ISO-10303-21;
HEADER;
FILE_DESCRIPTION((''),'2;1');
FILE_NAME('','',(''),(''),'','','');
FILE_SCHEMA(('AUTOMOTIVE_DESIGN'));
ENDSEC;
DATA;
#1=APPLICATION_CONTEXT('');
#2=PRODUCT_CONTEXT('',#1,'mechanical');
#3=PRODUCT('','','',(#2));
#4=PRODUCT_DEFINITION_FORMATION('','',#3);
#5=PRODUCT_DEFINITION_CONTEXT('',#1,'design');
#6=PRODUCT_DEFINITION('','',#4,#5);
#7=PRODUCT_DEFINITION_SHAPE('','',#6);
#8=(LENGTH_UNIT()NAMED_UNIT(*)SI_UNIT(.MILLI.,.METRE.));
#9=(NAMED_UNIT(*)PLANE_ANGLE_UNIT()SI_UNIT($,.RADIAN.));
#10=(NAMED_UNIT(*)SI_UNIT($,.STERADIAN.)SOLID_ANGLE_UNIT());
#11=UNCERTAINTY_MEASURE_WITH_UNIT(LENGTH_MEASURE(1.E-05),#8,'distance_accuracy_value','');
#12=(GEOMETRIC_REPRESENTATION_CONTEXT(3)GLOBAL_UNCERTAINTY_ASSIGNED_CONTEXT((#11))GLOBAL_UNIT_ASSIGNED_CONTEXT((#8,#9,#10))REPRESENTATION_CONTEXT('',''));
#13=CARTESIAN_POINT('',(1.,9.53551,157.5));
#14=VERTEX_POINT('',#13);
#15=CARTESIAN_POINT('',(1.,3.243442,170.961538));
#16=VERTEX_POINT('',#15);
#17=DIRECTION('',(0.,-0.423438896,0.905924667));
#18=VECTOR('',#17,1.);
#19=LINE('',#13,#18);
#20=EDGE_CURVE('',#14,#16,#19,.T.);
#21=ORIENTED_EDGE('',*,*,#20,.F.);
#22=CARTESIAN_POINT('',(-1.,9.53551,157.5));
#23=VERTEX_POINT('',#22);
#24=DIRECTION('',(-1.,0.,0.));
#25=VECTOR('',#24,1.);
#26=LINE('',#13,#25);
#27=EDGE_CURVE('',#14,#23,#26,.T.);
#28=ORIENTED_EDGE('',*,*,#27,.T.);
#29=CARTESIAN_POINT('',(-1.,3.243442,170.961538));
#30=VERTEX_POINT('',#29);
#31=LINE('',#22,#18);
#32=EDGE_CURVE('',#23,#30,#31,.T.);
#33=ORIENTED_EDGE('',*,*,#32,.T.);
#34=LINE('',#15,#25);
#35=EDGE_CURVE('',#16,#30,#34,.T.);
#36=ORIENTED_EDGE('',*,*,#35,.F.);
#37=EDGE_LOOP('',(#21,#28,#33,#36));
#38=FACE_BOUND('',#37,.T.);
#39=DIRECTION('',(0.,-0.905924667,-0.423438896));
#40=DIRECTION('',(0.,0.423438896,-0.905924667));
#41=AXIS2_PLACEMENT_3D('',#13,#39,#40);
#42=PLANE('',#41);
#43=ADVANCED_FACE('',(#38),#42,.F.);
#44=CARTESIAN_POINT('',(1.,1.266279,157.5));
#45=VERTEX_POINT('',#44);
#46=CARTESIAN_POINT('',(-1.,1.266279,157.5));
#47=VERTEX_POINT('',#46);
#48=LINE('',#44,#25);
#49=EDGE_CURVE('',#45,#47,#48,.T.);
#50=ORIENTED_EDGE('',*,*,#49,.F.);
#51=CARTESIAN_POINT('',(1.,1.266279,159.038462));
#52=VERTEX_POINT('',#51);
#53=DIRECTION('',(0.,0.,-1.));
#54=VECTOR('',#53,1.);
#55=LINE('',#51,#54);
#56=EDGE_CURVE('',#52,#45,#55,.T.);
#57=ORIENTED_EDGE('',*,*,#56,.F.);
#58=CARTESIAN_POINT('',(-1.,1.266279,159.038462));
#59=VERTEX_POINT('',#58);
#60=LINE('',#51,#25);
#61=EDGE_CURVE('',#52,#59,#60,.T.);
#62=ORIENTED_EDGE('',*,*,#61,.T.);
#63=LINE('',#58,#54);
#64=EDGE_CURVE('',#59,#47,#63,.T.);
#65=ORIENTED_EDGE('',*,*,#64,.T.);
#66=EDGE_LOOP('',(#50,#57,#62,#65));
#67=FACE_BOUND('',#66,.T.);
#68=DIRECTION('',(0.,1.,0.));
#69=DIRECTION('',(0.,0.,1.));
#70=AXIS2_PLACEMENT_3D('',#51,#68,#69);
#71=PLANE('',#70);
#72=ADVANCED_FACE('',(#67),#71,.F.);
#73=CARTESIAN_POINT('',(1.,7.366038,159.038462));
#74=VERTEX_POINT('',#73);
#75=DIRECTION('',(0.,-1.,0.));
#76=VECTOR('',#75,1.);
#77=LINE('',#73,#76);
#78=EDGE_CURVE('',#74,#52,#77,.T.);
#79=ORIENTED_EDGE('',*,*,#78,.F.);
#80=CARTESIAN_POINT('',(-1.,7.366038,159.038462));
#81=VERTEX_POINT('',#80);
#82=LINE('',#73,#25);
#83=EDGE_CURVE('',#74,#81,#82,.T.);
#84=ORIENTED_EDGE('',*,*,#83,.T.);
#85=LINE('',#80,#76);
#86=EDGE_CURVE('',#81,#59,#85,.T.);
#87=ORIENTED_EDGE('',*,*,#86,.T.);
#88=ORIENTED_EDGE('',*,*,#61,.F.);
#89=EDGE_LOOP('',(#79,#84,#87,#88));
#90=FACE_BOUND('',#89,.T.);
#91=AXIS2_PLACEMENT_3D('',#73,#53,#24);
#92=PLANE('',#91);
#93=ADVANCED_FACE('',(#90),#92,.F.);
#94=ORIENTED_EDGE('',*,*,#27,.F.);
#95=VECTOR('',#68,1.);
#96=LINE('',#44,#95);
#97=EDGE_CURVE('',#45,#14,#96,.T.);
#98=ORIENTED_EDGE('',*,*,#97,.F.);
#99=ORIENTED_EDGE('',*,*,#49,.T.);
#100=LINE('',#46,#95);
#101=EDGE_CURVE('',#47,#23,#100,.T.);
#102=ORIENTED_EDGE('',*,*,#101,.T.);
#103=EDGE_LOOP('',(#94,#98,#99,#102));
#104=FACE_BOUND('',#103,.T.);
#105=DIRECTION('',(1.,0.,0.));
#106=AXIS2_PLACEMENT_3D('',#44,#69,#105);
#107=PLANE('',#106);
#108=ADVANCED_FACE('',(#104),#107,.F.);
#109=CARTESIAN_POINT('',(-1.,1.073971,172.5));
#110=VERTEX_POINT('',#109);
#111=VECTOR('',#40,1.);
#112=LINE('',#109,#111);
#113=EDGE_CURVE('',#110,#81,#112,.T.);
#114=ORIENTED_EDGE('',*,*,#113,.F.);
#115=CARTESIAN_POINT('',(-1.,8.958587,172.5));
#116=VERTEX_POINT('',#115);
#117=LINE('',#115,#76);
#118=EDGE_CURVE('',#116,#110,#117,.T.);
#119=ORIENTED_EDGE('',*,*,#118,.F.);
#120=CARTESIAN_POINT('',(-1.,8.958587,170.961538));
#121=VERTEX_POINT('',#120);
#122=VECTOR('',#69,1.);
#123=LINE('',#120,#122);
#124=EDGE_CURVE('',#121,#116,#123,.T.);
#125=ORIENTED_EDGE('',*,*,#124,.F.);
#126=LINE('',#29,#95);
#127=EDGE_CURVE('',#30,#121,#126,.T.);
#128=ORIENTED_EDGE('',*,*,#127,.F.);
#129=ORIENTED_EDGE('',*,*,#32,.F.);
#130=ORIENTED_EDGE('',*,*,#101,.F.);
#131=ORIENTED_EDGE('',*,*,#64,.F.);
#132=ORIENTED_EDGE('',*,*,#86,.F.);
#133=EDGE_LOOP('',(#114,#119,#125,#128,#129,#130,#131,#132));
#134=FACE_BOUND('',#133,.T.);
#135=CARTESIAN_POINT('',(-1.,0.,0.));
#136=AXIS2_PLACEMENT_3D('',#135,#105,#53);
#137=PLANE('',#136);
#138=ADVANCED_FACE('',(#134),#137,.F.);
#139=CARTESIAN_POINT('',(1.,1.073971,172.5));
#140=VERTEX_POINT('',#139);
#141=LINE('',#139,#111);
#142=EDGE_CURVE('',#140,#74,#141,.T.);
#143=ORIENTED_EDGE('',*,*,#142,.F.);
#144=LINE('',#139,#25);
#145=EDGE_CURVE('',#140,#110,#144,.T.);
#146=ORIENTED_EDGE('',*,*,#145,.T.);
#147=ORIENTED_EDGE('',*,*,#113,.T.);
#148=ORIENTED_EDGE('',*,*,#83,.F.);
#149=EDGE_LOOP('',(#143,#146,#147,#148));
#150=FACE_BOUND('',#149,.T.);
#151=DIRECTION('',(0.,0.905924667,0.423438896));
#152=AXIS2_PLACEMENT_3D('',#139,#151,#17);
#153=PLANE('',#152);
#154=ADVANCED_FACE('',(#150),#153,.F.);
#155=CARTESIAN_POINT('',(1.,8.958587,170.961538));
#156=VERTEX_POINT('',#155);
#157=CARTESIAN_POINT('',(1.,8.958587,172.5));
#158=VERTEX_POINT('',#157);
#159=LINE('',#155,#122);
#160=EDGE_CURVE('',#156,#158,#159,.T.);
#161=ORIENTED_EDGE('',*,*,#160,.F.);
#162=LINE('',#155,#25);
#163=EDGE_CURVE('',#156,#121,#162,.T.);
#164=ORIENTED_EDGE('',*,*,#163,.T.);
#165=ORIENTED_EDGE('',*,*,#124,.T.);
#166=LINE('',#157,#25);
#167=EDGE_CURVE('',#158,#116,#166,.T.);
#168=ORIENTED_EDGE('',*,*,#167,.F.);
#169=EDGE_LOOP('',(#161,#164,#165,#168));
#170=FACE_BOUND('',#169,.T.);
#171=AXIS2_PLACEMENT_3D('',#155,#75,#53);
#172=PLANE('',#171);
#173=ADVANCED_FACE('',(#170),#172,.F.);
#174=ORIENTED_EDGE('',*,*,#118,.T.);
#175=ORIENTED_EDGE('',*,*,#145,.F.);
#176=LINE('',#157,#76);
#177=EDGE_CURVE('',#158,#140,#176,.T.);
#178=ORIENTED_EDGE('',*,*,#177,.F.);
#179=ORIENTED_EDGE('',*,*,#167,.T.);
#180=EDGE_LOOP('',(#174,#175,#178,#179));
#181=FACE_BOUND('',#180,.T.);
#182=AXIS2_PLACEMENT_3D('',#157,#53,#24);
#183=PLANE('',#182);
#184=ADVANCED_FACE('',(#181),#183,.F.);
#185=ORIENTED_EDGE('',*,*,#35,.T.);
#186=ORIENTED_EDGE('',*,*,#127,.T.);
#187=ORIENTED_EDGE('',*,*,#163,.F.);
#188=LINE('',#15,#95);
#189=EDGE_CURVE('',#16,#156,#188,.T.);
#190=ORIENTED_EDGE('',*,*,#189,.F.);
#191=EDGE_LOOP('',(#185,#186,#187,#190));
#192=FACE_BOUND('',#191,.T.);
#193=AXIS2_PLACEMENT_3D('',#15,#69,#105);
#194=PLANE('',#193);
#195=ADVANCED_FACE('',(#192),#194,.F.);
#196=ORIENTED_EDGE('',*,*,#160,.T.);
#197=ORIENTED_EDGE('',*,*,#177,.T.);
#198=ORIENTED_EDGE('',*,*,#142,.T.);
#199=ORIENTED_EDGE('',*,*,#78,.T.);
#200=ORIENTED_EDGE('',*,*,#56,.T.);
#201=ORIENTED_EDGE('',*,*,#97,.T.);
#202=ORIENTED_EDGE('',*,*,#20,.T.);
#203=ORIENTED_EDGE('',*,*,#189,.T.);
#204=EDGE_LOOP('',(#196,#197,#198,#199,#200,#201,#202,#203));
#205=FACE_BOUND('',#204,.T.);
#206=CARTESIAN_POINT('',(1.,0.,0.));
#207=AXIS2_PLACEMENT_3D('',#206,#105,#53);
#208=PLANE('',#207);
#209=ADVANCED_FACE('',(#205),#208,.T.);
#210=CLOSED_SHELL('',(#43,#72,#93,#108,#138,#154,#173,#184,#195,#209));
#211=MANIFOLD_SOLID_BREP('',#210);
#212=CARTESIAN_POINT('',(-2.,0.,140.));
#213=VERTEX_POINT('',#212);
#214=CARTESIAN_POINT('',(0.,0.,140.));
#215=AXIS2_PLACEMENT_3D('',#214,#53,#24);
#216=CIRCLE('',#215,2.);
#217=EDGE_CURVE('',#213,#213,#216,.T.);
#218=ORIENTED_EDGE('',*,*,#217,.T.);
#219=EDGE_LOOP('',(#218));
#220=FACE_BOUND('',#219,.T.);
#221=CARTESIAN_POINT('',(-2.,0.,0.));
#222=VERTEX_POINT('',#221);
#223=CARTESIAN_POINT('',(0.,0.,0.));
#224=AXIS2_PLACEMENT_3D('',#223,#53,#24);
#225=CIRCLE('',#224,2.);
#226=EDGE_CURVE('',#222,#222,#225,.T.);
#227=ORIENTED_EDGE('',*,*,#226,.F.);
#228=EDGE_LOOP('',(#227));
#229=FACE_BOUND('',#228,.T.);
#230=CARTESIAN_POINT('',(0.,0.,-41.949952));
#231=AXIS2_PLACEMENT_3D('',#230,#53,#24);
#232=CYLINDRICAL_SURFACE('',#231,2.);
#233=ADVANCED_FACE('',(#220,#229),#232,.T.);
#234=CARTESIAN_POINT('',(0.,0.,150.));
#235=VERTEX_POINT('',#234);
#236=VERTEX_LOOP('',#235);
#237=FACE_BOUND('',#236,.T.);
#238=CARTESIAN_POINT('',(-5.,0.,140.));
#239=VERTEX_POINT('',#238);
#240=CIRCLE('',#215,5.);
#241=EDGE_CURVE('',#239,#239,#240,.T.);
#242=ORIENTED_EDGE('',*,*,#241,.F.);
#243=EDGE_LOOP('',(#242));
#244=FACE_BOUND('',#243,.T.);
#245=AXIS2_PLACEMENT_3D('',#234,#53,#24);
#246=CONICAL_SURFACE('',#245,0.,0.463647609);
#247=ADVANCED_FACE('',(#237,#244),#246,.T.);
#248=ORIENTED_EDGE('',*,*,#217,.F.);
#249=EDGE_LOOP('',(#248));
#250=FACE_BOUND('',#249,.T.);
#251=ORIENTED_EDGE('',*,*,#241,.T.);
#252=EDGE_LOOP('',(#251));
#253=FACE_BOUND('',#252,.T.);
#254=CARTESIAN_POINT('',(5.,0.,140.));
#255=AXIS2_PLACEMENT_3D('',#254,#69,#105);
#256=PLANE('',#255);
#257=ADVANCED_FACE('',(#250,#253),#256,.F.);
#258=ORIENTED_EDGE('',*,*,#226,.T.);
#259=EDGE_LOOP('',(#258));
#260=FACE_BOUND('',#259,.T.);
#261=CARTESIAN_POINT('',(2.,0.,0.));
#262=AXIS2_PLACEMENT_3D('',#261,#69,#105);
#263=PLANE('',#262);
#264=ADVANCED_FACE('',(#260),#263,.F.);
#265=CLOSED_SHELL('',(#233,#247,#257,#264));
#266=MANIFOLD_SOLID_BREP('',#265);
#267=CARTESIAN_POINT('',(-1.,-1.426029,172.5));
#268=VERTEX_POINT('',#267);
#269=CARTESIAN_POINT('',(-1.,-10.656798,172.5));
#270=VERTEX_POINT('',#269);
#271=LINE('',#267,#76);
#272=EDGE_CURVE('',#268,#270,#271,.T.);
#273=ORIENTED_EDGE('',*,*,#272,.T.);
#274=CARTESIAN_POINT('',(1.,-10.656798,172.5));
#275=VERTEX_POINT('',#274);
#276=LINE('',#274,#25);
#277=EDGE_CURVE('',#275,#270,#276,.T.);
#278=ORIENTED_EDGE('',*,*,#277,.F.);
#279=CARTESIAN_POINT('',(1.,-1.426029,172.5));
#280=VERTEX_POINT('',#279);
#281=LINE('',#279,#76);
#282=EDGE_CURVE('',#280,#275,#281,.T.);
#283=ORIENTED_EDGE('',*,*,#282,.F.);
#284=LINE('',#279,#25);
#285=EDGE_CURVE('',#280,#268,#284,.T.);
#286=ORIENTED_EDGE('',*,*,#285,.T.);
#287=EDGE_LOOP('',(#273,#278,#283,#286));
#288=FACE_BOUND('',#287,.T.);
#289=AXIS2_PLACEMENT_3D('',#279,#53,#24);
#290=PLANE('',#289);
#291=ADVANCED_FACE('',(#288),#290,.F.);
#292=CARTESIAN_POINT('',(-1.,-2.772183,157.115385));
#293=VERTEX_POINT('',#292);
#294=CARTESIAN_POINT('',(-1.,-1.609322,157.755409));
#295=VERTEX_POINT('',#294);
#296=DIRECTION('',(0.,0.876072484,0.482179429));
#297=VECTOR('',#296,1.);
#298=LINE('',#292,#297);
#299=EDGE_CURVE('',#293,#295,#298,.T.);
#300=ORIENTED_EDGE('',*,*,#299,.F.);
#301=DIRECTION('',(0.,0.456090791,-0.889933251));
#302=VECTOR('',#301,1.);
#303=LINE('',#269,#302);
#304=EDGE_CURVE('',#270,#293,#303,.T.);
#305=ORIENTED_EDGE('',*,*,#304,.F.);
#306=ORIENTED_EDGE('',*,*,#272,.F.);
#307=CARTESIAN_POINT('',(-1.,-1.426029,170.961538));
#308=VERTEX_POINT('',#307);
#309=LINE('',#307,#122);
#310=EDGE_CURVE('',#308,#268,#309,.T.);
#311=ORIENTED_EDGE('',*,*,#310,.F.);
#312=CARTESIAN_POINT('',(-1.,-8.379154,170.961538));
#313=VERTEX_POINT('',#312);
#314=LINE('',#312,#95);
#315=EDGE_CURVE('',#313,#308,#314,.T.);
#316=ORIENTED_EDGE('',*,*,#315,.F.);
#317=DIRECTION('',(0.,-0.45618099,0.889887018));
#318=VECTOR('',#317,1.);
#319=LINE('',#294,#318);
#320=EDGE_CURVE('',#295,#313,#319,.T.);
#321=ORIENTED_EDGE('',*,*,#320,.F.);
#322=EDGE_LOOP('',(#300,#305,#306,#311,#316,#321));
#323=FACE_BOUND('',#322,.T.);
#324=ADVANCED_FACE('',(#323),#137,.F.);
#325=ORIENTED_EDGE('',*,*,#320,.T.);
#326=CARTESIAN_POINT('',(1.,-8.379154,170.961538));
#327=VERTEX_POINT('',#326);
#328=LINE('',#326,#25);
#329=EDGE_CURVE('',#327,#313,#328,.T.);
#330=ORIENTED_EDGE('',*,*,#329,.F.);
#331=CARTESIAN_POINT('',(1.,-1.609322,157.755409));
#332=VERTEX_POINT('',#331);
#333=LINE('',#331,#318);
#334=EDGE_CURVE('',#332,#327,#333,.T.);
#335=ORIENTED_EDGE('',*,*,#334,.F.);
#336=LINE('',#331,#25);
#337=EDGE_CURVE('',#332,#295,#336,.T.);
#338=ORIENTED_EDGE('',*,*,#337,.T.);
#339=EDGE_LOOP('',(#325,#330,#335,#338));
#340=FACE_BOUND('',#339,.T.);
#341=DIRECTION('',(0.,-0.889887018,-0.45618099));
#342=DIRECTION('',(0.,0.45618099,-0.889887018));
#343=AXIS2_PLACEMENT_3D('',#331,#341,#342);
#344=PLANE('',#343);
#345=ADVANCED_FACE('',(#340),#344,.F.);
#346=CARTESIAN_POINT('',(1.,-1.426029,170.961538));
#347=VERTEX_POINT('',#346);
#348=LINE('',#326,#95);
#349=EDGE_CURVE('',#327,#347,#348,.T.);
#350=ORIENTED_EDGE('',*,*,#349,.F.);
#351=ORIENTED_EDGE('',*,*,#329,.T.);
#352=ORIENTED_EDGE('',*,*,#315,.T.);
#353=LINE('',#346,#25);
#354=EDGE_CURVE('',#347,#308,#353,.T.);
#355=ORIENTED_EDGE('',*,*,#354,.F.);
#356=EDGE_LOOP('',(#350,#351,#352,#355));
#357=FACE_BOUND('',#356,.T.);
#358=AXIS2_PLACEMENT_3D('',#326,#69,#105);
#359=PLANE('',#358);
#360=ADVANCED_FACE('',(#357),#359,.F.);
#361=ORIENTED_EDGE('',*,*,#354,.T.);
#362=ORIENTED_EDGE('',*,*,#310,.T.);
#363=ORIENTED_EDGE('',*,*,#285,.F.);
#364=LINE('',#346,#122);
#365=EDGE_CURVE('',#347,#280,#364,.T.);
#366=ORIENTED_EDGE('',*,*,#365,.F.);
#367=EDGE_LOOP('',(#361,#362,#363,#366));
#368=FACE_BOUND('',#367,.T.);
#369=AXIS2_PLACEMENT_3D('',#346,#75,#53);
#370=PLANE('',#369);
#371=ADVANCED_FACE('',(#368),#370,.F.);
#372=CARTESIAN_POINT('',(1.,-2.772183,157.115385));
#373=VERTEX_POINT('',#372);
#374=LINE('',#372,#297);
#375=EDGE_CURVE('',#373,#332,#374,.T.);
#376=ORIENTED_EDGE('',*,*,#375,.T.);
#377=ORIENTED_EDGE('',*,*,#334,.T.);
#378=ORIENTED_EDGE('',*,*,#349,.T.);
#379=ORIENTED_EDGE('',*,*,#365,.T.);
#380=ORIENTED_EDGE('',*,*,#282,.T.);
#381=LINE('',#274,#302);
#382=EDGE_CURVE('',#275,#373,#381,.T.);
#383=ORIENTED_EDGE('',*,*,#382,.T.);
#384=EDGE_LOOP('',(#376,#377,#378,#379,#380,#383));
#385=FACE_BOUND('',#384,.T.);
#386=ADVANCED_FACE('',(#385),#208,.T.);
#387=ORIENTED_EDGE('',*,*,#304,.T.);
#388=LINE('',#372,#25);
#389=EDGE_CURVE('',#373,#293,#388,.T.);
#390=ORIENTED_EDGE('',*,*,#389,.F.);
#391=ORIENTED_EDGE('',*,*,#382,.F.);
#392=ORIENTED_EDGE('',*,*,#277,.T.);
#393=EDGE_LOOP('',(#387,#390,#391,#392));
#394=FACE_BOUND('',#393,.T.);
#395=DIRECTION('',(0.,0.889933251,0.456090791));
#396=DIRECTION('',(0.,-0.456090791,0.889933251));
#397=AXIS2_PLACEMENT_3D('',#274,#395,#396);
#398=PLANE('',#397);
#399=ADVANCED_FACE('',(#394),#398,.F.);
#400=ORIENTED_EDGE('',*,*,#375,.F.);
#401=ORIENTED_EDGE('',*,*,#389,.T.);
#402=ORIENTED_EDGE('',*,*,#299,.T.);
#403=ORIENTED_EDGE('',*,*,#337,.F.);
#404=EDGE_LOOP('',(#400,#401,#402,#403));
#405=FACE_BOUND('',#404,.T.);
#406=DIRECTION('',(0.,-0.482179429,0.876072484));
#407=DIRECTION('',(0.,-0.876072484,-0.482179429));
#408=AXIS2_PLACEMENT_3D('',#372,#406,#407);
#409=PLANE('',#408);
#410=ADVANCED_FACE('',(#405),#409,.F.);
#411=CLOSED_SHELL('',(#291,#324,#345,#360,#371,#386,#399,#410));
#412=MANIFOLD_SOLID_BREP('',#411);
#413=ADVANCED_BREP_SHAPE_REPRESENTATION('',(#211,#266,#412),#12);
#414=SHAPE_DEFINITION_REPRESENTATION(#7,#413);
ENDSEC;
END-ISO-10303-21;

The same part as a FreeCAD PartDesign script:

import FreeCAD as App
import Part
import Sketcher

doc = App.newDocument("Part")
params = doc.addObject("Spreadsheet::Sheet", "Params")
for row, (alias, value) in enumerate([
    ("sketch1_width", "3 mm"),
    ("sketch1_width2", "2 mm"),
    ("sketch1_height", "140 mm"),
    ("sketch1_height2", "150 mm"),
    ("revolution_angle", "360 deg"),
    ("pad1_length", "1 mm"),
    ("pad1_length2", "1 mm"),
    ("pad2_length", "1 mm"),
    ("pad2_length2", "1 mm"),
], start=1):
    params.set(f"A{row}", alias)
    params.set(f"B{row}", "=" + value)
    params.setAlias(f"B{row}", alias)

body = doc.addObject("PartDesign::Body", "Body")

sketch1 = doc.addObject("Sketcher::SketchObject", "Sketch")
body.addObject(sketch1)
sketch1.AttachmentSupport = (doc.XZ_Plane, [""])
sketch1.MapMode = "FlatFace"
sketch1.addGeometry([
    Part.LineSegment(App.Vector(0, 150, 0), App.Vector(5, 140, 0)),
    Part.LineSegment(App.Vector(5, 140, 0), App.Vector(2, 140, 0)),
    Part.LineSegment(App.Vector(2, 140, 0), App.Vector(2, 0, 0)),
    Part.LineSegment(App.Vector(2, 0, 0), App.Vector(0, 0, 0)),
    Part.LineSegment(App.Vector(0, 0, 0), App.Vector(0, 150, 0)),
], False)
sketch1.addConstraint([
    Sketcher.Constraint("Coincident", 0, 2, 1, 1),
    Sketcher.Constraint("Coincident", 1, 2, 2, 1),
    Sketcher.Constraint("Coincident", 2, 2, 3, 1),
    Sketcher.Constraint("Coincident", 3, 2, 4, 1),
    Sketcher.Constraint("Coincident", 4, 2, 0, 1),
    Sketcher.Constraint("Horizontal", 1),
    Sketcher.Constraint("Vertical", 2),
    Sketcher.Constraint("Horizontal", 3),
    Sketcher.Constraint("Vertical", 4),
    Sketcher.Constraint("Coincident", 3, 2, -1, 1),
    Sketcher.Constraint("DistanceX", 1, 2, 1, 1, 3.0),
    Sketcher.Constraint("DistanceX", 3, 2, 3, 1, 2.0),
    Sketcher.Constraint("DistanceY", 2, 2, 2, 1, 140.0),
    Sketcher.Constraint("DistanceY", 4, 1, 4, 2, 150.0),
])
sketch1.setExpression("Constraints[10]", "Params.sketch1_width")
sketch1.setExpression("Constraints[11]", "Params.sketch1_width2")
sketch1.setExpression("Constraints[12]", "Params.sketch1_height")
sketch1.setExpression("Constraints[13]", "Params.sketch1_height2")
revolution = doc.addObject("PartDesign::Revolution", "Revolution")
body.addObject(revolution)
revolution.Profile = sketch1
revolution.ReferenceAxis = (sketch1, ["V_Axis"])
revolution.setExpression("Angle", "Params.revolution_angle")
body2 = doc.addObject("PartDesign::Body", "Body001")

sketch2 = doc.addObject("Sketcher::SketchObject", "Sketch001")
body2.addObject(sketch2)
sketch2.AttachmentSupport = (doc.getObject("YZ_Plane001"), [""])
sketch2.MapMode = "FlatFace"
sketch2.addGeometry([
    Part.LineSegment(App.Vector(9, 171, 0), App.Vector(9, 172.5, 0)),
    Part.LineSegment(App.Vector(9, 172.5, 0), App.Vector(1.1, 172.5, 0)),
    Part.LineSegment(App.Vector(1.1, 172.5, 0), App.Vector(7.4, 159, 0)),
    Part.LineSegment(App.Vector(7.4, 159, 0), App.Vector(1.3, 159, 0)),
    Part.LineSegment(App.Vector(1.3, 159, 0), App.Vector(1.3, 157.5, 0)),
    Part.LineSegment(App.Vector(1.3, 157.5, 0), App.Vector(9.5, 157.5, 0)),
    Part.LineSegment(App.Vector(9.5, 157.5, 0), App.Vector(3.2, 171, 0)),
    Part.LineSegment(App.Vector(3.2, 171, 0), App.Vector(9, 171, 0)),
], False)
sketch2.addConstraint([
    Sketcher.Constraint("Coincident", 0, 2, 1, 1),
    Sketcher.Constraint("Coincident", 1, 2, 2, 1),
    Sketcher.Constraint("Coincident", 2, 2, 3, 1),
    Sketcher.Constraint("Coincident", 3, 2, 4, 1),
    Sketcher.Constraint("Coincident", 4, 2, 5, 1),
    Sketcher.Constraint("Coincident", 5, 2, 6, 1),
    Sketcher.Constraint("Coincident", 6, 2, 7, 1),
    Sketcher.Constraint("Coincident", 7, 2, 0, 1),
    Sketcher.Constraint("Vertical", 0),
    Sketcher.Constraint("Horizontal", 1),
    Sketcher.Constraint("Horizontal", 3),
    Sketcher.Constraint("Vertical", 4),
    Sketcher.Constraint("Horizontal", 5),
    Sketcher.Constraint("Horizontal", 7),
    Sketcher.Constraint("Parallel", 2, 6),
    Sketcher.Constraint("Equal", 0, 4),
    Sketcher.Constraint("DistanceY", 4, 2, 1, 2, 15.0),
    Sketcher.Constraint("DistanceY", -1, 1, 0, 2, 172.5),
    Sketcher.Constraint("DistanceX", 3, 2, 3, 1, 6.09976),
    Sketcher.Constraint("DistanceX", 5, 1, 5, 2, 8.269231),
    Sketcher.Constraint("DistanceY", 0, 1, 0, 2, 1.538462),
    Sketcher.Constraint("DistanceX", 1, 2, 1, 1, 7.884615),
    Sketcher.Constraint("DistanceX", -1, 1, 1, 2, 1.073971),
    Sketcher.Constraint("DistanceX", -1, 1, 2, 2, 7.366038),
])
pad1 = doc.addObject("PartDesign::Pad", "Pad")
body2.addObject(pad1)
pad1.Profile = sketch2
pad1.Type = "TwoLengths"
pad1.setExpression("Length", "Params.pad1_length")
pad1.setExpression("Length2", "Params.pad1_length2")
body3 = doc.addObject("PartDesign::Body", "Body002")

sketch3 = doc.addObject("Sketcher::SketchObject", "Sketch002")
body3.addObject(sketch3)
sketch3.AttachmentSupport = (doc.getObject("YZ_Plane002"), [""])
sketch3.MapMode = "FlatFace"
sketch3.addGeometry([
    Part.LineSegment(App.Vector(-1.4, 172.5, 0), App.Vector(-10.7, 172.5, 0)),
    Part.LineSegment(App.Vector(-10.7, 172.5, 0), App.Vector(-2.8, 157.1, 0)),
    Part.LineSegment(App.Vector(-2.8, 157.1, 0), App.Vector(-1.6, 157.8, 0)),
    Part.LineSegment(App.Vector(-1.6, 157.8, 0), App.Vector(-8.4, 171, 0)),
    Part.LineSegment(App.Vector(-8.4, 171, 0), App.Vector(-1.4, 171, 0)),
    Part.LineSegment(App.Vector(-1.4, 171, 0), App.Vector(-1.4, 172.5, 0)),
], False)
sketch3.addConstraint([
    Sketcher.Constraint("Coincident", 0, 2, 1, 1),
    Sketcher.Constraint("Coincident", 1, 2, 2, 1),
    Sketcher.Constraint("Coincident", 2, 2, 3, 1),
    Sketcher.Constraint("Coincident", 3, 2, 4, 1),
    Sketcher.Constraint("Coincident", 4, 2, 5, 1),
    Sketcher.Constraint("Coincident", 5, 2, 0, 1),
    Sketcher.Constraint("Horizontal", 0),
    Sketcher.Constraint("Horizontal", 4),
    Sketcher.Constraint("Vertical", 5),
    Sketcher.Constraint("DistanceY", -1, 1, 0, 2, 172.5),
    Sketcher.Constraint("DistanceX", 0, 2, 0, 1, 9.230769),
    Sketcher.Constraint("DistanceY", 5, 1, 5, 2, 1.538462),
    Sketcher.Constraint("DistanceX", 0, 2, -1, 1, 10.656798),
    Sketcher.Constraint("Distance", 1, 17.287381),
    Sketcher.Constraint("DistanceX", 4, 1, 4, 2, 6.953125),
    Sketcher.Constraint("DistanceY", -1, 1, 2, 2, 157.755409),
    Sketcher.Constraint("DistanceX", 1, 2, 2, 2, 1.162861),
    Sketcher.Constraint("DistanceX", 3, 2, 2, 2, 6.769832),
])
pad2 = doc.addObject("PartDesign::Pad", "Pad001")
body3.addObject(pad2)
pad2.Profile = sketch3
pad2.Type = "TwoLengths"
pad2.setExpression("Length", "Params.pad2_length")
pad2.setExpression("Length2", "Params.pad2_length2")

doc.recompute()
